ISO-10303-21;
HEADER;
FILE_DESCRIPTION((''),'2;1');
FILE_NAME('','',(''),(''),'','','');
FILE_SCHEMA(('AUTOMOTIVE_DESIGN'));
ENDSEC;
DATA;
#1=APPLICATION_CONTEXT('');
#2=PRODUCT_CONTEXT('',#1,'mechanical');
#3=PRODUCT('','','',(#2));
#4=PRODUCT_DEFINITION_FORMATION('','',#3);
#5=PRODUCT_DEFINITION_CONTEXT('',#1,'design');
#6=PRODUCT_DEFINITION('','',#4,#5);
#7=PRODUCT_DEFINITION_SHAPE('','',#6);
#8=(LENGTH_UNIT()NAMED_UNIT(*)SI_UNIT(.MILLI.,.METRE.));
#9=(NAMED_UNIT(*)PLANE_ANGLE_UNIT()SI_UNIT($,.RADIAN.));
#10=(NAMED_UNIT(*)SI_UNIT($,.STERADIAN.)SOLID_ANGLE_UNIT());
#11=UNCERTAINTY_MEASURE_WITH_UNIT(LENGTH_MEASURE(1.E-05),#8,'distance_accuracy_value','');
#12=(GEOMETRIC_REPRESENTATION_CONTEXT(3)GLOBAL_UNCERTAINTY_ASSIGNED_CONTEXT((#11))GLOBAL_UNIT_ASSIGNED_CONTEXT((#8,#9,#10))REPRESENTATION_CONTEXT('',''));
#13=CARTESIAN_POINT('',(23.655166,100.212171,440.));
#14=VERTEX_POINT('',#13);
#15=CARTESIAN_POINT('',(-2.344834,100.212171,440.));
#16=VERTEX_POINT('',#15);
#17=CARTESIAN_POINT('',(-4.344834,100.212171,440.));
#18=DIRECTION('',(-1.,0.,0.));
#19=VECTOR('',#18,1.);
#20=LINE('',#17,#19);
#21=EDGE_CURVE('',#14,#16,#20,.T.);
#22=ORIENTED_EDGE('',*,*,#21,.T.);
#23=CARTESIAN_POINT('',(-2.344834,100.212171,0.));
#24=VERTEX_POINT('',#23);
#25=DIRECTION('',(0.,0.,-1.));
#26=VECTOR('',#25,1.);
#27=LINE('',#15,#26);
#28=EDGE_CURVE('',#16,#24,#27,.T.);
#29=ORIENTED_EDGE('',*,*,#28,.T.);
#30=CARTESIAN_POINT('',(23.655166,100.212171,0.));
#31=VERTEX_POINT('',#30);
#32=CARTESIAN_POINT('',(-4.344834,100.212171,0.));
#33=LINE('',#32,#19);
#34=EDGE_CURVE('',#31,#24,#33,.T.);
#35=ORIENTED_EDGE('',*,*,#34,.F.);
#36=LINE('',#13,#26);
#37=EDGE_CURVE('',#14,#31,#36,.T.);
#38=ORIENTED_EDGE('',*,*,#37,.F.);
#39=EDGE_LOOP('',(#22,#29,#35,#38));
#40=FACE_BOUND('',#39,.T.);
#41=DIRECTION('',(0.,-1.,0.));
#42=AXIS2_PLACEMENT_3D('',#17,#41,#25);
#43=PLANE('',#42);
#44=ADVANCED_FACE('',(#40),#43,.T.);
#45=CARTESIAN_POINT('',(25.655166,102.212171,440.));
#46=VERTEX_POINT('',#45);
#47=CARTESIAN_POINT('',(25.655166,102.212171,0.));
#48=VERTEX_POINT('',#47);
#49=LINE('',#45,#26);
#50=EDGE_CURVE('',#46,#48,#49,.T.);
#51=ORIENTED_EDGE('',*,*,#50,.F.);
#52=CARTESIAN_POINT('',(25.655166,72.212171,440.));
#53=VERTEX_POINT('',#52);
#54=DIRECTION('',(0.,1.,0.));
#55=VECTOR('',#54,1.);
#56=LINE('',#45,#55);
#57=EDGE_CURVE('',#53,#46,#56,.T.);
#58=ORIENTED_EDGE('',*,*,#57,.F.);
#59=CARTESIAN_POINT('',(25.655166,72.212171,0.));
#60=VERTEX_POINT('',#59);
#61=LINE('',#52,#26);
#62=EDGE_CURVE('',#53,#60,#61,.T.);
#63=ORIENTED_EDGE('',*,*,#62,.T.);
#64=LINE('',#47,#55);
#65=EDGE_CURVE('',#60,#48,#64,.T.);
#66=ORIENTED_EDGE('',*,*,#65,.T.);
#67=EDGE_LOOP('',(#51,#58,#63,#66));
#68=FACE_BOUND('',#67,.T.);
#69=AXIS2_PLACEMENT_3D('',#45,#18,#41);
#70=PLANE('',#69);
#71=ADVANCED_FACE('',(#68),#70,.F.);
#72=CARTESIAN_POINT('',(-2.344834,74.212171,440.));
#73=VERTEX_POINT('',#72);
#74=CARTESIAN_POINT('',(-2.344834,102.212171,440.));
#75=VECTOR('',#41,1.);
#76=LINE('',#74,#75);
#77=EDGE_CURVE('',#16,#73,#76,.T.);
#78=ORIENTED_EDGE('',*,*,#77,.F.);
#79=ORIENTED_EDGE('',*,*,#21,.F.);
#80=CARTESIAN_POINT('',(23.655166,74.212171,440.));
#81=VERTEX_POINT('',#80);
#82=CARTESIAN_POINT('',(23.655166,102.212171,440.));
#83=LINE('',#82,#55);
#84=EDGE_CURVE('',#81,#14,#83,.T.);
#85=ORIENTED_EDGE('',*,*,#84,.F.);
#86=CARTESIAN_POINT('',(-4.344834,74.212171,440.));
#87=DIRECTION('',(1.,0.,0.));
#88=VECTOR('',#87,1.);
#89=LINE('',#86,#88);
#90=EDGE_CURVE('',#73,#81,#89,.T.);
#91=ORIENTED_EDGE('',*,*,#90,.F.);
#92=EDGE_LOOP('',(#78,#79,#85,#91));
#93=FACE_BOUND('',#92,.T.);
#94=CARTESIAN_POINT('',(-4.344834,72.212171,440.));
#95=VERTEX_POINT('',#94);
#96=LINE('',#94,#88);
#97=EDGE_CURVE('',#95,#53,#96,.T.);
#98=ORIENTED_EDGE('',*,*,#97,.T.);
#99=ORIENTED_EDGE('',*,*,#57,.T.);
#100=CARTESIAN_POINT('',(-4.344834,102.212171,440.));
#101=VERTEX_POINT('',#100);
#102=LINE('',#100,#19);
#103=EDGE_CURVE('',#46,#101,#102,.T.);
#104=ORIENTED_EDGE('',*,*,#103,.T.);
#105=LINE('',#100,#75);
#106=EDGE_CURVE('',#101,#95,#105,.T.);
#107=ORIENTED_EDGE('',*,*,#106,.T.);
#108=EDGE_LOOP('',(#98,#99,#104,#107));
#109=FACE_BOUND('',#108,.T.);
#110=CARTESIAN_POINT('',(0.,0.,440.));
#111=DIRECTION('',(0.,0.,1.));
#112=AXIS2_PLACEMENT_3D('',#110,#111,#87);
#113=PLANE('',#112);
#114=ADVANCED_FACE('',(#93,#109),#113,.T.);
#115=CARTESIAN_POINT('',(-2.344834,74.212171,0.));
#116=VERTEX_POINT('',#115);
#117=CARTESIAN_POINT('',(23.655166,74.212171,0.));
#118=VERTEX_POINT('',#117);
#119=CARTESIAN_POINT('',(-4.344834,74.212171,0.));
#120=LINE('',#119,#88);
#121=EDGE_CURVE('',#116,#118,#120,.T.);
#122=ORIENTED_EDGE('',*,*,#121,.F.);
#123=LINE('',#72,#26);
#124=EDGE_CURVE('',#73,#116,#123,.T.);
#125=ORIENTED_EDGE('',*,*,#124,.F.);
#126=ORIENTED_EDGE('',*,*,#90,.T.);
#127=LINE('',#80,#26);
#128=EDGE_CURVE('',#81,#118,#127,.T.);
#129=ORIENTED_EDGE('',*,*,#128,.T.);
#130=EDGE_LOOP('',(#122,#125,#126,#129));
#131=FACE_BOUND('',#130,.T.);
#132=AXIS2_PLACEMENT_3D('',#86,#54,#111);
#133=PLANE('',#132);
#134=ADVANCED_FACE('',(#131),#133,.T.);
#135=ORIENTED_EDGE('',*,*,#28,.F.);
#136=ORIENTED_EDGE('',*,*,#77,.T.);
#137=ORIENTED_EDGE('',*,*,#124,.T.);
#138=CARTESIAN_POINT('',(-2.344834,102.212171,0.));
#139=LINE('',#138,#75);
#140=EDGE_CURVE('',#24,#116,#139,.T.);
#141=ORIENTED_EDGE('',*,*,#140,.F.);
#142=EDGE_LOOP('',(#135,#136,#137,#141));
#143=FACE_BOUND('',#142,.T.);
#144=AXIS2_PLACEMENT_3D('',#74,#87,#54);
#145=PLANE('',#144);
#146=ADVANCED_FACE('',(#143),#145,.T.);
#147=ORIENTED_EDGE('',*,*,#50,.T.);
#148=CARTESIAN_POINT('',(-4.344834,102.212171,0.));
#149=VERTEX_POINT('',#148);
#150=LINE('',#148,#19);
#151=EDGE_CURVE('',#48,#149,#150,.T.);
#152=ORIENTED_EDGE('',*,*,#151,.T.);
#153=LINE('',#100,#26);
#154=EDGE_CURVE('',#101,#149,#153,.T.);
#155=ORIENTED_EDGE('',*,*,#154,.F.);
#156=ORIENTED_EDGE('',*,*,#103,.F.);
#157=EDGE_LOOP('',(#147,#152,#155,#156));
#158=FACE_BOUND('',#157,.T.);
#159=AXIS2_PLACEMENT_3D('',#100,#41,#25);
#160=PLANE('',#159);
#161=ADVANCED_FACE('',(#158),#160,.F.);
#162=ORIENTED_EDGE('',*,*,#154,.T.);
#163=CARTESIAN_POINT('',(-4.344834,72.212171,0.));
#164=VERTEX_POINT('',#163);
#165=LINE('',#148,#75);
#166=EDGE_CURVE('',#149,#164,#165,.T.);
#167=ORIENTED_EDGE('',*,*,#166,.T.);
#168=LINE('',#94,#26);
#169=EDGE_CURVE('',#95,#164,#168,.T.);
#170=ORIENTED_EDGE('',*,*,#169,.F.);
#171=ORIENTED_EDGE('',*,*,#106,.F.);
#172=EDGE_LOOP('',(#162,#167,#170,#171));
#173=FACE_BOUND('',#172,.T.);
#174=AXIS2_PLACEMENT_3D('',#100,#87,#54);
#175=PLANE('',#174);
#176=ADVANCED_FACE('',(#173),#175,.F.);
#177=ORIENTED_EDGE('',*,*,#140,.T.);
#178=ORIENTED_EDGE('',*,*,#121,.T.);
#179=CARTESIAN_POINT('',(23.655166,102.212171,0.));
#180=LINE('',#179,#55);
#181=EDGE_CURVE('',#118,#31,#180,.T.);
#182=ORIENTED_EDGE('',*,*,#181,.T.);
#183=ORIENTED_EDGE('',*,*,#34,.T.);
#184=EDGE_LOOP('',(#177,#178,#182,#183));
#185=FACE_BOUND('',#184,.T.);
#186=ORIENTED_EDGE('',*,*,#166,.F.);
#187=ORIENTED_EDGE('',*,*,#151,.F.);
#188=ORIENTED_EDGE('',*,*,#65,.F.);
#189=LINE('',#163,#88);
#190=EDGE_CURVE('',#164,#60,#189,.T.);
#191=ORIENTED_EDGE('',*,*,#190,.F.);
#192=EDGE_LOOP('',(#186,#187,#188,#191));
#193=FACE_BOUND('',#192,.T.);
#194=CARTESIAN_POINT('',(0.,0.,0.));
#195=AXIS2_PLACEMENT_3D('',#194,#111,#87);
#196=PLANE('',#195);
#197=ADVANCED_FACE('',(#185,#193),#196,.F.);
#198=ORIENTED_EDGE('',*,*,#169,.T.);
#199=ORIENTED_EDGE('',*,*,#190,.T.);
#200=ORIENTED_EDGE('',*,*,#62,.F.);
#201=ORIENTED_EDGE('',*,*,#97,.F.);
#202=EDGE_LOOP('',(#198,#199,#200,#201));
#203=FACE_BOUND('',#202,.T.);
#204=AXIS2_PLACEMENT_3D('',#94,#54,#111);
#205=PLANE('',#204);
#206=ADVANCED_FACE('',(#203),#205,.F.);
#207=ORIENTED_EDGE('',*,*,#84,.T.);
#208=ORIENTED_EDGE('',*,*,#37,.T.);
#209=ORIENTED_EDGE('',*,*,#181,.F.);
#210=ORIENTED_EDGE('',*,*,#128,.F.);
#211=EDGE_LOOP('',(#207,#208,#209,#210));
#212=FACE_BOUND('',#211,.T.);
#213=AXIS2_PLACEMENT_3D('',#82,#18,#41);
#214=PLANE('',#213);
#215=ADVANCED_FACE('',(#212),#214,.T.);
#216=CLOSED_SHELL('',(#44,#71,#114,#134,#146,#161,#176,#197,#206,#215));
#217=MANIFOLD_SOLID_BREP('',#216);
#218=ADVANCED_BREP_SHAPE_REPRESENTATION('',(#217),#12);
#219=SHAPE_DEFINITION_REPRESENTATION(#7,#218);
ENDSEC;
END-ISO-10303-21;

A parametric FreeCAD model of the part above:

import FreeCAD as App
import Part
import Sketcher


def faces_at(feature, points):
    """Names of the faces that lie closest to the given points."""
    faces = feature.Shape.Faces
    near = lambda p: min(range(len(faces)), key=lambda i: faces[i].distToShape(Part.Vertex(*p))[0])
    return sorted({f"Face{near(p) + 1}" for p in points})


def add_polygon(sketch, points):
    """Adds a closed chain of lines whose ends are joined by coincident constraints."""
    first, n = sketch.GeometryCount, len(points)
    for a, b in zip(points, points[1:] + points[:1]):
        sketch.addGeometry(Part.LineSegment(App.Vector(*a, 0), App.Vector(*b, 0)), False)
    for i in range(n):
        sketch.addConstraint(Sketcher.Constraint("Coincident", first + i, 2, first + (i + 1) % n, 1))

doc = App.newDocument("Part")
body = doc.addObject("PartDesign::Body", "Body")

sketch1 = body.newObject("Sketcher::SketchObject", "Sketch")
sketch1.AttachmentSupport = (doc.getObject("XY_Plane"), [""])
sketch1.MapMode = "FlatFace"
add_polygon(sketch1, [(-4, 102), (-4, 72), (26, 72), (26, 102)])
sketch1.addConstraint([
    Sketcher.Constraint("Vertical", 0),
    Sketcher.Constraint("Horizontal", 1),
    Sketcher.Constraint("Vertical", 2),
    Sketcher.Constraint("Horizontal", 3),
    Sketcher.Constraint("Equal", 3, 0),
    Sketcher.Constraint("DistanceX", 1, 1, 1, 2, 30.0),
    Sketcher.Constraint("DistanceY", -1, 1, 0, 2, 72.212171),
    Sketcher.Constraint("DistanceX", 0, 2, -1, 1, 4.344834),
])
pad1 = body.newObject("PartDesign::Pad", "Pad")
pad1.Profile = sketch1
pad1.Length = 440
doc.recompute()

thickness = body.newObject("PartDesign::Thickness", "Thickness")
thickness.Base = (pad1, faces_at(pad1, [(10.655, 87.212, 440), (10.655, 87.212, 0)]))
thickness.Value = 2
thickness.Reversed = True
thickness.Join = "Intersection"

doc.recompute()
